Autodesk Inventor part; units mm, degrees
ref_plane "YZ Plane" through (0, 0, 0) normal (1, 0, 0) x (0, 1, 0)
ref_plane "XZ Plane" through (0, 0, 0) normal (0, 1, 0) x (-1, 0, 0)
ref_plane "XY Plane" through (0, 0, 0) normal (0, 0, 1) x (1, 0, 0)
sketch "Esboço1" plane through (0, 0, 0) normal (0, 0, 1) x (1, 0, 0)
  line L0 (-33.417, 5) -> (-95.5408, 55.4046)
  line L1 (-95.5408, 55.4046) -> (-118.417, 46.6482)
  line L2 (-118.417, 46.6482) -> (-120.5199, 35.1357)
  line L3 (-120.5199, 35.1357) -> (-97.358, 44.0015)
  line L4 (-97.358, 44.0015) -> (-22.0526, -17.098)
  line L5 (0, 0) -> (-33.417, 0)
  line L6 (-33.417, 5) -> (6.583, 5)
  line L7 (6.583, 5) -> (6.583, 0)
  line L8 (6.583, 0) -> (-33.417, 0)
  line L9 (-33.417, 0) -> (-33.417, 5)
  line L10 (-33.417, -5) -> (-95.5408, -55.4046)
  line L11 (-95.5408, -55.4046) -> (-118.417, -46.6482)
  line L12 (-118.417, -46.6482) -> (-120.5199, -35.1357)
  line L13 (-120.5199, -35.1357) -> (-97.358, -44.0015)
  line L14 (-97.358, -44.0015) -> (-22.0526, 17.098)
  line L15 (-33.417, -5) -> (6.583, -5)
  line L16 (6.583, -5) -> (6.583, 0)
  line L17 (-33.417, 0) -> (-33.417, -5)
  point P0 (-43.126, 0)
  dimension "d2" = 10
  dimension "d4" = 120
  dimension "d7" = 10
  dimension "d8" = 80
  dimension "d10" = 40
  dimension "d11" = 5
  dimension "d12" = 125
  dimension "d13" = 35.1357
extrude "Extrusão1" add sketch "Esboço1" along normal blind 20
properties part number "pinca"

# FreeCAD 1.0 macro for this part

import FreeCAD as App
import Part
import Sketcher

V = App.Vector
Q = App.Units.Quantity

doc = App.newDocument("Part")
params = doc.addObject("Spreadsheet::Sheet", "Params")
for row, (alias, value) in enumerate([
    ("sketch1_width", "40 mm"),
    ("sketch1_height", "10 mm"),
    ("sketch1_length", "80 mm"),
    ("pad1_length", "20 mm"),
], start=1):
    params.set(f"A{row}", alias)
    params.set(f"B{row}", "=" + value)
    params.setAlias(f"B{row}", alias)

body = doc.addObject("PartDesign::Body", "Body")

sketch1 = body.newObject("Sketcher::SketchObject", "Sketch")
sketch1.AttachmentSupport = (doc.getObject("XY_Plane"), [""])
sketch1.MapMode = "FlatFace"
sketch1.addGeometry(Part.LineSegment(V(-33, -5, 0), V(7, -5, 0)), False)
sketch1.addGeometry(Part.LineSegment(V(7, -5, 0), V(7, 5, 0)), False)
sketch1.addGeometry(Part.LineSegment(V(7, 5, 0), V(-33, 5, 0)), False)
sketch1.addGeometry(Part.LineSegment(V(-33, 5, 0), V(-96, 55, 0)), False)
sketch1.addGeometry(Part.LineSegment(V(-96, 55, 0), V(-118, 47, 0)), False)
sketch1.addGeometry(Part.LineSegment(V(-118, 47, 0), V(-121, 35, 0)), False)
sketch1.addGeometry(Part.LineSegment(V(-121, 35, 0), V(-97, 44, 0)), False)
sketch1.addGeometry(Part.LineSegment(V(-97, 44, 0), V(-43, 0, 0)), False)
sketch1.addGeometry(Part.LineSegment(V(-43, 0, 0), V(-97, -44, 0)), False)
sketch1.addGeometry(Part.LineSegment(V(-97, -44, 0), V(-121, -35, 0)), False)
sketch1.addGeometry(Part.LineSegment(V(-121, -35, 0), V(-118, -47, 0)), False)
sketch1.addGeometry(Part.LineSegment(V(-118, -47, 0), V(-96, -55, 0)), False)
sketch1.addGeometry(Part.LineSegment(V(-96, -55, 0), V(-33, -5, 0)), False)
sketch1.addConstraint(Sketcher.Constraint("Coincident", 0, 2, 1, 1))
sketch1.addConstraint(Sketcher.Constraint("Coincident", 1, 2, 2, 1))
sketch1.addConstraint(Sketcher.Constraint("Coincident", 2, 2, 3, 1))
sketch1.addConstraint(Sketcher.Constraint("Coincident", 3, 2, 4, 1))
sketch1.addConstraint(Sketcher.Constraint("Coincident", 4, 2, 5, 1))
sketch1.addConstraint(Sketcher.Constraint("Coincident", 5, 2, 6, 1))
sketch1.addConstraint(Sketcher.Constraint("Coincident", 6, 2, 7, 1))
sketch1.addConstraint(Sketcher.Constraint("Coincident", 7, 2, 8, 1))
sketch1.addConstraint(Sketcher.Constraint("Coincident", 8, 2, 9, 1))
sketch1.addConstraint(Sketcher.Constraint("Coincident", 9, 2, 10, 1))
sketch1.addConstraint(Sketcher.Constraint("Coincident", 10, 2, 11, 1))
sketch1.addConstraint(Sketcher.Constraint("Coincident", 11, 2, 12, 1))
sketch1.addConstraint(Sketcher.Constraint("Coincident", 12, 2, 0, 1))
sketch1.addConstraint(Sketcher.Constraint("Horizontal", 0))
sketch1.addConstraint(Sketcher.Constraint("Vertical", 1))
sketch1.addConstraint(Sketcher.Constraint("Horizontal", 2))
sketch1.addConstraint(Sketcher.Constraint("Symmetric", 6, 2, 8, 2, -1))
sketch1.addConstraint(Sketcher.Constraint("Symmetric", 5, 2, 9, 2, -1))
sketch1.addConstraint(Sketcher.Constraint("Symmetric", 4, 2, 10, 2, -1))
sketch1.addConstraint(Sketcher.Constraint("Symmetric", 3, 2, 11, 2, -1))
sketch1.addConstraint(Sketcher.Constraint("Symmetric", 2, 2, 12, 2, -1))
sketch1.addConstraint(Sketcher.Constraint("PointOnObject", 7, 2, -1))
sketch1.addConstraint(Sketcher.Constraint("Parallel", 4, 6))
sketch1.addConstraint(Sketcher.Constraint("Parallel", 3, 7))
sketch1.addConstraint(Sketcher.Constraint("DistanceX", 0, 1, 0, 2, Q("40 mm")))
sketch1.addConstraint(Sketcher.Constraint("DistanceY", 1, 1, 1, 2, Q("10 mm")))
sketch1.addConstraint(Sketcher.Constraint("Distance", 3, Q("80 mm")))
sketch1.addConstraint(Sketcher.Constraint("DistanceX", 4, 2, 1, 2, Q("125 mm")))
sketch1.addConstraint(Sketcher.Constraint("DistanceY", -1, 1, 5, 2, Q("35.1357 mm")))
sketch1.addConstraint(Sketcher.Constraint("DistanceX", 5, 2, -1, 1, Q("120.52 mm")))
sketch1.addConstraint(Sketcher.Constraint("Distance", 5, Q("11.703 mm")))
sketch1.addConstraint(Sketcher.Constraint("DistanceX", -1, 1, 0, 2, Q("6.583 mm")))
sketch1.addConstraint(Sketcher.Constraint("DistanceX", 6, 2, -1, 1, Q("97.358 mm")))
sketch1.addConstraint(Sketcher.Constraint("DistanceX", 7, 2, -1, 1, Q("43.126 mm")))
sketch1.setExpression("Constraints[24]", "Params.sketch1_width")
sketch1.setExpression("Constraints[25]", "Params.sketch1_height")
sketch1.setExpression("Constraints[26]", "Params.sketch1_length")
pad1 = body.newObject("PartDesign::Pad", "Pad")
pad1.Profile = sketch1
pad1.setExpression("Length", "Params.pad1_length")

doc.recompute()
